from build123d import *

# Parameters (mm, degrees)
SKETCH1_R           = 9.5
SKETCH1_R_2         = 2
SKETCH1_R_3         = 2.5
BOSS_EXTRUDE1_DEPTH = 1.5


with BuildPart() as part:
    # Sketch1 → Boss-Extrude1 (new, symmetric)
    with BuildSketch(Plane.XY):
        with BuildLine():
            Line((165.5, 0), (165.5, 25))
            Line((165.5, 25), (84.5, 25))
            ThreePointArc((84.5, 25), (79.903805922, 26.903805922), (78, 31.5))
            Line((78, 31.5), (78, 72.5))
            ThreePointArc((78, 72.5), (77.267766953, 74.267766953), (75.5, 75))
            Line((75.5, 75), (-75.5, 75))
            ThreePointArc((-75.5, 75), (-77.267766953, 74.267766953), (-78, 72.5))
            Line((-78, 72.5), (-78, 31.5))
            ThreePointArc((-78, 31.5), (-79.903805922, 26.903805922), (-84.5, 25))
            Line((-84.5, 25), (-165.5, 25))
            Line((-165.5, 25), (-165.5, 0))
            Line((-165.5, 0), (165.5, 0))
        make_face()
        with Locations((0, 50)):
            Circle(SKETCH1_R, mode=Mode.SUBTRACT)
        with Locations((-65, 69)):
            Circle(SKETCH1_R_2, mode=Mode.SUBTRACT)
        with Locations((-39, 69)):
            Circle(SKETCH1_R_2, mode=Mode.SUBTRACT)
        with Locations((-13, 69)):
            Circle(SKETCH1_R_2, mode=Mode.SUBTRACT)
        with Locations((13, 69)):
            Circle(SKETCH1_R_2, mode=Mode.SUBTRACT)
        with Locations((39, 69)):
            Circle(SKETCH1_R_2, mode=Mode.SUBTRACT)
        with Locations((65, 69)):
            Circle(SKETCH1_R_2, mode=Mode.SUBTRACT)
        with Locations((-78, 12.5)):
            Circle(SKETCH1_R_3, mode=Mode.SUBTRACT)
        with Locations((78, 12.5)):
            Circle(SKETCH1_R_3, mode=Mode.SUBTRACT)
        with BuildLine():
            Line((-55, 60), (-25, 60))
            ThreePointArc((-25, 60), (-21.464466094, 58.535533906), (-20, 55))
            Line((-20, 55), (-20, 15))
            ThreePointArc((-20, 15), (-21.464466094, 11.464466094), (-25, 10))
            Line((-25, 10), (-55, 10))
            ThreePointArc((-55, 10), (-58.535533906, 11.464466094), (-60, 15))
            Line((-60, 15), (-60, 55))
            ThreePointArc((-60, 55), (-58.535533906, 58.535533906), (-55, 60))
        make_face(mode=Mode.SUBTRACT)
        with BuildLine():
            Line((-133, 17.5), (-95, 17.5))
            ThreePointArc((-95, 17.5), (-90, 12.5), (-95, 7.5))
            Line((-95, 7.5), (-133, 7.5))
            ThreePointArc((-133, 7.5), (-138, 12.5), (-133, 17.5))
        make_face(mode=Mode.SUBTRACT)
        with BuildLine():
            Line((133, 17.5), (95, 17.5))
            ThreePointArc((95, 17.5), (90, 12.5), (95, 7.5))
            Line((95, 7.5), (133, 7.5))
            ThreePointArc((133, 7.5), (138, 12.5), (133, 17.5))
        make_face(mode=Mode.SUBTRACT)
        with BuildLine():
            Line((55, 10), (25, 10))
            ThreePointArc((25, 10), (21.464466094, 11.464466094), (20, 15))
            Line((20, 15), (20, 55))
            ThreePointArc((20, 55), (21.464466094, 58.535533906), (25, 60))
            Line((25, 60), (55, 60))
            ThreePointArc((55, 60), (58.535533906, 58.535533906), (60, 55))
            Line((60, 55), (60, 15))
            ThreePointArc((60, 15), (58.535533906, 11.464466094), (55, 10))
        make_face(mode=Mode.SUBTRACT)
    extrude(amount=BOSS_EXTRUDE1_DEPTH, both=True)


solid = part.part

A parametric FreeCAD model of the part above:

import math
import FreeCAD as App
import Part
import Sketcher
Q = App.Units.Quantity

doc = App.newDocument("Part")
body = doc.addObject("PartDesign::Body", "Body")

# Sketch on XY plane
sketch1 = body.newObject("Sketcher::SketchObject", "Sketch")
sketch1.AttachmentSupport = (doc.getObject("XY_Plane"), [""])
sketch1.MapMode = "FlatFace"
sketch1.addGeometry([
    Part.LineSegment(App.Vector(165.5, 0, 0), App.Vector(165.5, 25, 0)),  # 0
    Part.LineSegment(App.Vector(165.5, 25, 0), App.Vector(84.5, 25, 0)),  # 1
    Part.ArcOfCircle(Part.Circle(App.Vector(84.5, 31.5, 0), App.Vector(0, 0, 1), 6.5), math.radians(180), math.radians(270)),  # 2
    Part.LineSegment(App.Vector(78, 31.5, 0), App.Vector(78, 72.5, 0)),  # 3
    Part.ArcOfCircle(Part.Circle(App.Vector(75.5, 72.5, 0), App.Vector(0, 0, 1), 2.5), math.radians(0), math.radians(90)),  # 4
    Part.LineSegment(App.Vector(75.5, 75, 0), App.Vector(-75.5, 75, 0)),  # 5
    Part.ArcOfCircle(Part.Circle(App.Vector(-75.5, 72.5, 0), App.Vector(0, 0, 1), 2.5), math.radians(90), math.radians(180)),  # 6
    Part.LineSegment(App.Vector(-78, 72.5, 0), App.Vector(-78, 31.5, 0)),  # 7
    Part.ArcOfCircle(Part.Circle(App.Vector(-84.5, 31.5, 0), App.Vector(0, 0, 1), 6.5), math.radians(-90), math.radians(0)),  # 8
    Part.LineSegment(App.Vector(-84.5, 25, 0), App.Vector(-165.5, 25, 0)),  # 9
    Part.LineSegment(App.Vector(-165.5, 25, 0), App.Vector(-165.5, 0, 0)),  # 10
    Part.LineSegment(App.Vector(-165.5, 0, 0), App.Vector(165.5, 0, 0)),  # 11
    Part.ArcOfCircle(Part.Circle(App.Vector(-133, 12.5, 0), App.Vector(0, 0, 1), 5), math.radians(90), math.radians(270)),  # 12
    Part.LineSegment(App.Vector(-133, 17.5, 0), App.Vector(-95, 17.5, 0)),  # 13
    Part.ArcOfCircle(Part.Circle(App.Vector(-95, 12.5, 0), App.Vector(0, 0, 1), 5), math.radians(-90), math.radians(90)),  # 14
    Part.LineSegment(App.Vector(-95, 7.5, 0), App.Vector(-133, 7.5, 0)),  # 15
    Part.Circle(App.Vector(-78, 12.5, 0), App.Vector(0, 0, 1), 2.5),  # 16
    Part.ArcOfCircle(Part.Circle(App.Vector(-55, 55, 0), App.Vector(0, 0, 1), 5), math.radians(90), math.radians(180)),  # 17
    Part.LineSegment(App.Vector(-55, 60, 0), App.Vector(-25, 60, 0)),  # 18
    Part.ArcOfCircle(Part.Circle(App.Vector(-25, 55, 0), App.Vector(0, 0, 1), 5), math.radians(0), math.radians(90)),  # 19
    Part.LineSegment(App.Vector(-20, 55, 0), App.Vector(-20, 15, 0)),  # 20
    Part.ArcOfCircle(Part.Circle(App.Vector(-25, 15, 0), App.Vector(0, 0, 1), 5), math.radians(-90), math.radians(0)),  # 21
    Part.LineSegment(App.Vector(-25, 10, 0), App.Vector(-55, 10, 0)),  # 22
    Part.ArcOfCircle(Part.Circle(App.Vector(-55, 15, 0), App.Vector(0, 0, 1), 5), math.radians(180), math.radians(270)),  # 23
    Part.LineSegment(App.Vector(-60, 15, 0), App.Vector(-60, 55, 0)),  # 24
    Part.Circle(App.Vector(78, 12.5, 0), App.Vector(0, 0, 1), 2.5),  # 25
    Part.LineSegment(App.Vector(95, 17.5, 0), App.Vector(133, 17.5, 0)),  # 26
    Part.ArcOfCircle(Part.Circle(App.Vector(133, 12.5, 0), App.Vector(0, 0, 1), 5), math.radians(-90), math.radians(90)),  # 27
    Part.LineSegment(App.Vector(133, 7.5, 0), App.Vector(95, 7.5, 0)),  # 28
    Part.ArcOfCircle(Part.Circle(App.Vector(95, 12.5, 0), App.Vector(0, 0, 1), 5), math.radians(90), math.radians(270)),  # 29
    Part.ArcOfCircle(Part.Circle(App.Vector(55, 15, 0), App.Vector(0, 0, 1), 5), math.radians(-90), math.radians(0)),  # 30
    Part.LineSegment(App.Vector(55, 10, 0), App.Vector(25, 10, 0)),  # 31
    Part.ArcOfCircle(Part.Circle(App.Vector(25, 15, 0), App.Vector(0, 0, 1), 5), math.radians(180), math.radians(270)),  # 32
    Part.LineSegment(App.Vector(20, 15, 0), App.Vector(20, 55, 0)),  # 33
    Part.ArcOfCircle(Part.Circle(App.Vector(25, 55, 0), App.Vector(0, 0, 1), 5), math.radians(90), math.radians(180)),  # 34
    Part.LineSegment(App.Vector(25, 60, 0), App.Vector(55, 60, 0)),  # 35
    Part.ArcOfCircle(Part.Circle(App.Vector(55, 55, 0), App.Vector(0, 0, 1), 5), math.radians(0), math.radians(90)),  # 36
    Part.LineSegment(App.Vector(60, 55, 0), App.Vector(60, 15, 0)),  # 37
    Part.Circle(App.Vector(-65, 69, 0), App.Vector(0, 0, 1), 2),  # 38
    Part.Circle(App.Vector(-39, 69, 0), App.Vector(0, 0, 1), 2),  # 39
    Part.Circle(App.Vector(-13, 69, 0), App.Vector(0, 0, 1), 2),  # 40
    Part.Circle(App.Vector(0, 50, 0), App.Vector(0, 0, 1), 9.5),  # 41
    Part.Circle(App.Vector(13, 69, 0), App.Vector(0, 0, 1), 2),  # 42
    Part.Circle(App.Vector(39, 69, 0), App.Vector(0, 0, 1), 2),  # 43
    Part.Circle(App.Vector(65, 69, 0), App.Vector(0, 0, 1), 2),  # 44
], False)
sketch1.addConstraint([
    Sketcher.Constraint("Coincident", 0, 2, 1, 1),
    Sketcher.Constraint("Tangent", 1, 2, 2, 2),
    Sketcher.Constraint("Tangent", 2, 1, 3, 1),
    Sketcher.Constraint("Tangent", 3, 2, 4, 1),
    Sketcher.Constraint("Tangent", 4, 2, 5, 1),
    Sketcher.Constraint("Tangent", 5, 2, 6, 1),
    Sketcher.Constraint("Tangent", 6, 2, 7, 1),
    Sketcher.Constraint("Tangent", 7, 2, 8, 2),
    Sketcher.Constraint("Tangent", 8, 1, 9, 1),
    Sketcher.Constraint("Coincident", 9, 2, 10, 1),
    Sketcher.Constraint("Coincident", 10, 2, 11, 1),
    Sketcher.Constraint("Coincident", 11, 2, 0, 1),
    Sketcher.Constraint("Tangent", 12, 1, 13, 1),
    Sketcher.Constraint("Tangent", 13, 2, 14, 2),
    Sketcher.Constraint("Tangent", 14, 1, 15, 1),
    Sketcher.Constraint("Tangent", 15, 2, 12, 2),
    Sketcher.Constraint("Tangent", 17, 1, 18, 1),
    Sketcher.Constraint("Tangent", 18, 2, 19, 2),
    Sketcher.Constraint("Tangent", 19, 1, 20, 1),
    Sketcher.Constraint("Tangent", 20, 2, 21, 2),
    Sketcher.Constraint("Tangent", 21, 1, 22, 1),
    Sketcher.Constraint("Tangent", 22, 2, 23, 2),
    Sketcher.Constraint("Tangent", 23, 1, 24, 1),
    Sketcher.Constraint("Tangent", 24, 2, 17, 2),
    Sketcher.Constraint("Tangent", 26, 2, 27, 2),
    Sketcher.Constraint("Tangent", 27, 1, 28, 1),
    Sketcher.Constraint("Tangent", 28, 2, 29, 2),
    Sketcher.Constraint("Tangent", 29, 1, 26, 1),
    Sketcher.Constraint("Tangent", 30, 1, 31, 1),
    Sketcher.Constraint("Tangent", 31, 2, 32, 2),
    Sketcher.Constraint("Tangent", 32, 1, 33, 1),
    Sketcher.Constraint("Tangent", 33, 2, 34, 2),
    Sketcher.Constraint("Tangent", 34, 1, 35, 1),
    Sketcher.Constraint("Tangent", 35, 2, 36, 2),
    Sketcher.Constraint("Tangent", 36, 1, 37, 1),
    Sketcher.Constraint("Tangent", 37, 2, 30, 2),
    Sketcher.Constraint("Vertical", 0),
    Sketcher.Constraint("Horizontal", 1),
    Sketcher.Constraint("Vertical", 3),
    Sketcher.Constraint("Horizontal", 5),
    Sketcher.Constraint("Vertical", 7),
    Sketcher.Constraint("Horizontal", 9),
    Sketcher.Constraint("Vertical", 10),
    Sketcher.Constraint("Horizontal", 11),
    Sketcher.Constraint("Horizontal", 13),
    Sketcher.Constraint("Horizontal", 15),
    Sketcher.Constraint("Horizontal", 18),
    Sketcher.Constraint("Vertical", 20),
    Sketcher.Constraint("Horizontal", 22),
    Sketcher.Constraint("Vertical", 24),
    Sketcher.Constraint("Horizontal", 26),
    Sketcher.Constraint("Horizontal", 28),
    Sketcher.Constraint("Horizontal", 31),
    Sketcher.Constraint("Vertical", 33),
    Sketcher.Constraint("Horizontal", 35),
    Sketcher.Constraint("Vertical", 37),
    Sketcher.Constraint("Equal", 4, 6),
    Sketcher.Constraint("Equal", 2, 8),
    Sketcher.Constraint("Equal", 6, 16),
    Sketcher.Constraint("Equal", 14, 17),
    Sketcher.Constraint("Equal", 17, 19),
    Sketcher.Constraint("Equal", 19, 21),
    Sketcher.Constraint("Equal", 21, 23),
    Sketcher.Constraint("Equal", 16, 25),
    Sketcher.Constraint("Equal", 23, 27),
    Sketcher.Constraint("Equal", 29, 30),
    Sketcher.Constraint("Equal", 30, 32),
    Sketcher.Constraint("Equal", 32, 34),
    Sketcher.Constraint("Equal", 34, 36),
    Sketcher.Constraint("Equal", 38, 39),
    Sketcher.Constraint("Equal", 39, 40),
    Sketcher.Constraint("Equal", 40, 42),
    Sketcher.Constraint("Equal", 42, 43),
    Sketcher.Constraint("Equal", 43, 44),
    Sketcher.Constraint("Symmetric", 10, 2, 11, 2, -1, 1),
    Sketcher.Constraint("Symmetric", 2, 3, 8, 3, -2),
    Sketcher.Constraint("Symmetric", 16, 3, 25, 3, -2),
    Sketcher.Constraint("Symmetric", 12, 3, 27, 3, -2),
    Sketcher.Constraint("Symmetric", 23, 3, 30, 3, -2),
    Sketcher.Constraint("Symmetric", 19, 3, 34, 3, -2),
    Sketcher.Constraint("Symmetric", 40, 3, 42, 3, -2),
    Sketcher.Constraint("Symmetric", 39, 3, 43, 3, -2),
    Sketcher.Constraint("Symmetric", 38, 3, 44, 3, -2),
    Sketcher.Constraint("PointOnObject", 41, 3, -2),
    Sketcher.Constraint("Horizontal", 14, 3, 16, 3),
    Sketcher.Constraint("Horizontal", 38, 3, 39, 3),
    Sketcher.Constraint("Horizontal", 39, 3, 40, 3),
    Sketcher.Constraint("Vertical", 25, 3, 2, 1),
    Sketcher.Constraint("Equal", 15, 26),
    Sketcher.Constraint("Diameter", 16, Q("5 mm")),
    Sketcher.Constraint("Diameter", 38, Q("4 mm")),
    Sketcher.Constraint("Diameter", 41, Q("19 mm")),
    Sketcher.Constraint("Radius", 12, Q("5 mm")),
    Sketcher.Constraint("Radius", 2, Q("6.5 mm")),
    Sketcher.Constraint("DistanceX", 1, 2, 1, 1, Q("81 mm")),
    Sketcher.Constraint("DistanceX", 5, 2, 5, 1, Q("151 mm")),
    Sketcher.Constraint("DistanceX", 13, 1, 13, 2, Q("38 mm")),
    Sketcher.Constraint("DistanceX", 18, 1, 18, 2, Q("30 mm")),
    Sketcher.Constraint("DistanceY", 0, 1, 0, 2, Q("25 mm")),
    Sketcher.Constraint("DistanceY", 3, 1, 3, 2, Q("41 mm")),
    Sketcher.Constraint("DistanceY", 20, 2, 20, 1, Q("40 mm")),
    Sketcher.Constraint("DistanceX", 12, 3, -1, 1, Q("133 mm")),
    Sketcher.Constraint("DistanceX", 17, 3, -1, 1, Q("55 mm")),
    Sketcher.Constraint("DistanceY", -1, 1, 17, 3, Q("55 mm")),
    Sketcher.Constraint("DistanceX", 38, 3, -1, 1, Q("65 mm")),
    Sketcher.Constraint("DistanceY", -1, 1, 38, 3, Q("69 mm")),
    Sketcher.Constraint("DistanceX", 39, 3, -1, 1, Q("39 mm")),
    Sketcher.Constraint("DistanceX", 40, 3, -1, 1, Q("13 mm")),
    Sketcher.Constraint("DistanceY", -1, 1, 41, 3, Q("50 mm")),
    Sketcher.Constraint("DistanceY", -1, 1, 12, 3, Q("12.5 mm")),
])
pad1 = body.newObject("PartDesign::Pad", "Pad")
pad1.Profile = sketch1
pad1.Length = 3
pad1.Midplane = True

doc.recompute()
